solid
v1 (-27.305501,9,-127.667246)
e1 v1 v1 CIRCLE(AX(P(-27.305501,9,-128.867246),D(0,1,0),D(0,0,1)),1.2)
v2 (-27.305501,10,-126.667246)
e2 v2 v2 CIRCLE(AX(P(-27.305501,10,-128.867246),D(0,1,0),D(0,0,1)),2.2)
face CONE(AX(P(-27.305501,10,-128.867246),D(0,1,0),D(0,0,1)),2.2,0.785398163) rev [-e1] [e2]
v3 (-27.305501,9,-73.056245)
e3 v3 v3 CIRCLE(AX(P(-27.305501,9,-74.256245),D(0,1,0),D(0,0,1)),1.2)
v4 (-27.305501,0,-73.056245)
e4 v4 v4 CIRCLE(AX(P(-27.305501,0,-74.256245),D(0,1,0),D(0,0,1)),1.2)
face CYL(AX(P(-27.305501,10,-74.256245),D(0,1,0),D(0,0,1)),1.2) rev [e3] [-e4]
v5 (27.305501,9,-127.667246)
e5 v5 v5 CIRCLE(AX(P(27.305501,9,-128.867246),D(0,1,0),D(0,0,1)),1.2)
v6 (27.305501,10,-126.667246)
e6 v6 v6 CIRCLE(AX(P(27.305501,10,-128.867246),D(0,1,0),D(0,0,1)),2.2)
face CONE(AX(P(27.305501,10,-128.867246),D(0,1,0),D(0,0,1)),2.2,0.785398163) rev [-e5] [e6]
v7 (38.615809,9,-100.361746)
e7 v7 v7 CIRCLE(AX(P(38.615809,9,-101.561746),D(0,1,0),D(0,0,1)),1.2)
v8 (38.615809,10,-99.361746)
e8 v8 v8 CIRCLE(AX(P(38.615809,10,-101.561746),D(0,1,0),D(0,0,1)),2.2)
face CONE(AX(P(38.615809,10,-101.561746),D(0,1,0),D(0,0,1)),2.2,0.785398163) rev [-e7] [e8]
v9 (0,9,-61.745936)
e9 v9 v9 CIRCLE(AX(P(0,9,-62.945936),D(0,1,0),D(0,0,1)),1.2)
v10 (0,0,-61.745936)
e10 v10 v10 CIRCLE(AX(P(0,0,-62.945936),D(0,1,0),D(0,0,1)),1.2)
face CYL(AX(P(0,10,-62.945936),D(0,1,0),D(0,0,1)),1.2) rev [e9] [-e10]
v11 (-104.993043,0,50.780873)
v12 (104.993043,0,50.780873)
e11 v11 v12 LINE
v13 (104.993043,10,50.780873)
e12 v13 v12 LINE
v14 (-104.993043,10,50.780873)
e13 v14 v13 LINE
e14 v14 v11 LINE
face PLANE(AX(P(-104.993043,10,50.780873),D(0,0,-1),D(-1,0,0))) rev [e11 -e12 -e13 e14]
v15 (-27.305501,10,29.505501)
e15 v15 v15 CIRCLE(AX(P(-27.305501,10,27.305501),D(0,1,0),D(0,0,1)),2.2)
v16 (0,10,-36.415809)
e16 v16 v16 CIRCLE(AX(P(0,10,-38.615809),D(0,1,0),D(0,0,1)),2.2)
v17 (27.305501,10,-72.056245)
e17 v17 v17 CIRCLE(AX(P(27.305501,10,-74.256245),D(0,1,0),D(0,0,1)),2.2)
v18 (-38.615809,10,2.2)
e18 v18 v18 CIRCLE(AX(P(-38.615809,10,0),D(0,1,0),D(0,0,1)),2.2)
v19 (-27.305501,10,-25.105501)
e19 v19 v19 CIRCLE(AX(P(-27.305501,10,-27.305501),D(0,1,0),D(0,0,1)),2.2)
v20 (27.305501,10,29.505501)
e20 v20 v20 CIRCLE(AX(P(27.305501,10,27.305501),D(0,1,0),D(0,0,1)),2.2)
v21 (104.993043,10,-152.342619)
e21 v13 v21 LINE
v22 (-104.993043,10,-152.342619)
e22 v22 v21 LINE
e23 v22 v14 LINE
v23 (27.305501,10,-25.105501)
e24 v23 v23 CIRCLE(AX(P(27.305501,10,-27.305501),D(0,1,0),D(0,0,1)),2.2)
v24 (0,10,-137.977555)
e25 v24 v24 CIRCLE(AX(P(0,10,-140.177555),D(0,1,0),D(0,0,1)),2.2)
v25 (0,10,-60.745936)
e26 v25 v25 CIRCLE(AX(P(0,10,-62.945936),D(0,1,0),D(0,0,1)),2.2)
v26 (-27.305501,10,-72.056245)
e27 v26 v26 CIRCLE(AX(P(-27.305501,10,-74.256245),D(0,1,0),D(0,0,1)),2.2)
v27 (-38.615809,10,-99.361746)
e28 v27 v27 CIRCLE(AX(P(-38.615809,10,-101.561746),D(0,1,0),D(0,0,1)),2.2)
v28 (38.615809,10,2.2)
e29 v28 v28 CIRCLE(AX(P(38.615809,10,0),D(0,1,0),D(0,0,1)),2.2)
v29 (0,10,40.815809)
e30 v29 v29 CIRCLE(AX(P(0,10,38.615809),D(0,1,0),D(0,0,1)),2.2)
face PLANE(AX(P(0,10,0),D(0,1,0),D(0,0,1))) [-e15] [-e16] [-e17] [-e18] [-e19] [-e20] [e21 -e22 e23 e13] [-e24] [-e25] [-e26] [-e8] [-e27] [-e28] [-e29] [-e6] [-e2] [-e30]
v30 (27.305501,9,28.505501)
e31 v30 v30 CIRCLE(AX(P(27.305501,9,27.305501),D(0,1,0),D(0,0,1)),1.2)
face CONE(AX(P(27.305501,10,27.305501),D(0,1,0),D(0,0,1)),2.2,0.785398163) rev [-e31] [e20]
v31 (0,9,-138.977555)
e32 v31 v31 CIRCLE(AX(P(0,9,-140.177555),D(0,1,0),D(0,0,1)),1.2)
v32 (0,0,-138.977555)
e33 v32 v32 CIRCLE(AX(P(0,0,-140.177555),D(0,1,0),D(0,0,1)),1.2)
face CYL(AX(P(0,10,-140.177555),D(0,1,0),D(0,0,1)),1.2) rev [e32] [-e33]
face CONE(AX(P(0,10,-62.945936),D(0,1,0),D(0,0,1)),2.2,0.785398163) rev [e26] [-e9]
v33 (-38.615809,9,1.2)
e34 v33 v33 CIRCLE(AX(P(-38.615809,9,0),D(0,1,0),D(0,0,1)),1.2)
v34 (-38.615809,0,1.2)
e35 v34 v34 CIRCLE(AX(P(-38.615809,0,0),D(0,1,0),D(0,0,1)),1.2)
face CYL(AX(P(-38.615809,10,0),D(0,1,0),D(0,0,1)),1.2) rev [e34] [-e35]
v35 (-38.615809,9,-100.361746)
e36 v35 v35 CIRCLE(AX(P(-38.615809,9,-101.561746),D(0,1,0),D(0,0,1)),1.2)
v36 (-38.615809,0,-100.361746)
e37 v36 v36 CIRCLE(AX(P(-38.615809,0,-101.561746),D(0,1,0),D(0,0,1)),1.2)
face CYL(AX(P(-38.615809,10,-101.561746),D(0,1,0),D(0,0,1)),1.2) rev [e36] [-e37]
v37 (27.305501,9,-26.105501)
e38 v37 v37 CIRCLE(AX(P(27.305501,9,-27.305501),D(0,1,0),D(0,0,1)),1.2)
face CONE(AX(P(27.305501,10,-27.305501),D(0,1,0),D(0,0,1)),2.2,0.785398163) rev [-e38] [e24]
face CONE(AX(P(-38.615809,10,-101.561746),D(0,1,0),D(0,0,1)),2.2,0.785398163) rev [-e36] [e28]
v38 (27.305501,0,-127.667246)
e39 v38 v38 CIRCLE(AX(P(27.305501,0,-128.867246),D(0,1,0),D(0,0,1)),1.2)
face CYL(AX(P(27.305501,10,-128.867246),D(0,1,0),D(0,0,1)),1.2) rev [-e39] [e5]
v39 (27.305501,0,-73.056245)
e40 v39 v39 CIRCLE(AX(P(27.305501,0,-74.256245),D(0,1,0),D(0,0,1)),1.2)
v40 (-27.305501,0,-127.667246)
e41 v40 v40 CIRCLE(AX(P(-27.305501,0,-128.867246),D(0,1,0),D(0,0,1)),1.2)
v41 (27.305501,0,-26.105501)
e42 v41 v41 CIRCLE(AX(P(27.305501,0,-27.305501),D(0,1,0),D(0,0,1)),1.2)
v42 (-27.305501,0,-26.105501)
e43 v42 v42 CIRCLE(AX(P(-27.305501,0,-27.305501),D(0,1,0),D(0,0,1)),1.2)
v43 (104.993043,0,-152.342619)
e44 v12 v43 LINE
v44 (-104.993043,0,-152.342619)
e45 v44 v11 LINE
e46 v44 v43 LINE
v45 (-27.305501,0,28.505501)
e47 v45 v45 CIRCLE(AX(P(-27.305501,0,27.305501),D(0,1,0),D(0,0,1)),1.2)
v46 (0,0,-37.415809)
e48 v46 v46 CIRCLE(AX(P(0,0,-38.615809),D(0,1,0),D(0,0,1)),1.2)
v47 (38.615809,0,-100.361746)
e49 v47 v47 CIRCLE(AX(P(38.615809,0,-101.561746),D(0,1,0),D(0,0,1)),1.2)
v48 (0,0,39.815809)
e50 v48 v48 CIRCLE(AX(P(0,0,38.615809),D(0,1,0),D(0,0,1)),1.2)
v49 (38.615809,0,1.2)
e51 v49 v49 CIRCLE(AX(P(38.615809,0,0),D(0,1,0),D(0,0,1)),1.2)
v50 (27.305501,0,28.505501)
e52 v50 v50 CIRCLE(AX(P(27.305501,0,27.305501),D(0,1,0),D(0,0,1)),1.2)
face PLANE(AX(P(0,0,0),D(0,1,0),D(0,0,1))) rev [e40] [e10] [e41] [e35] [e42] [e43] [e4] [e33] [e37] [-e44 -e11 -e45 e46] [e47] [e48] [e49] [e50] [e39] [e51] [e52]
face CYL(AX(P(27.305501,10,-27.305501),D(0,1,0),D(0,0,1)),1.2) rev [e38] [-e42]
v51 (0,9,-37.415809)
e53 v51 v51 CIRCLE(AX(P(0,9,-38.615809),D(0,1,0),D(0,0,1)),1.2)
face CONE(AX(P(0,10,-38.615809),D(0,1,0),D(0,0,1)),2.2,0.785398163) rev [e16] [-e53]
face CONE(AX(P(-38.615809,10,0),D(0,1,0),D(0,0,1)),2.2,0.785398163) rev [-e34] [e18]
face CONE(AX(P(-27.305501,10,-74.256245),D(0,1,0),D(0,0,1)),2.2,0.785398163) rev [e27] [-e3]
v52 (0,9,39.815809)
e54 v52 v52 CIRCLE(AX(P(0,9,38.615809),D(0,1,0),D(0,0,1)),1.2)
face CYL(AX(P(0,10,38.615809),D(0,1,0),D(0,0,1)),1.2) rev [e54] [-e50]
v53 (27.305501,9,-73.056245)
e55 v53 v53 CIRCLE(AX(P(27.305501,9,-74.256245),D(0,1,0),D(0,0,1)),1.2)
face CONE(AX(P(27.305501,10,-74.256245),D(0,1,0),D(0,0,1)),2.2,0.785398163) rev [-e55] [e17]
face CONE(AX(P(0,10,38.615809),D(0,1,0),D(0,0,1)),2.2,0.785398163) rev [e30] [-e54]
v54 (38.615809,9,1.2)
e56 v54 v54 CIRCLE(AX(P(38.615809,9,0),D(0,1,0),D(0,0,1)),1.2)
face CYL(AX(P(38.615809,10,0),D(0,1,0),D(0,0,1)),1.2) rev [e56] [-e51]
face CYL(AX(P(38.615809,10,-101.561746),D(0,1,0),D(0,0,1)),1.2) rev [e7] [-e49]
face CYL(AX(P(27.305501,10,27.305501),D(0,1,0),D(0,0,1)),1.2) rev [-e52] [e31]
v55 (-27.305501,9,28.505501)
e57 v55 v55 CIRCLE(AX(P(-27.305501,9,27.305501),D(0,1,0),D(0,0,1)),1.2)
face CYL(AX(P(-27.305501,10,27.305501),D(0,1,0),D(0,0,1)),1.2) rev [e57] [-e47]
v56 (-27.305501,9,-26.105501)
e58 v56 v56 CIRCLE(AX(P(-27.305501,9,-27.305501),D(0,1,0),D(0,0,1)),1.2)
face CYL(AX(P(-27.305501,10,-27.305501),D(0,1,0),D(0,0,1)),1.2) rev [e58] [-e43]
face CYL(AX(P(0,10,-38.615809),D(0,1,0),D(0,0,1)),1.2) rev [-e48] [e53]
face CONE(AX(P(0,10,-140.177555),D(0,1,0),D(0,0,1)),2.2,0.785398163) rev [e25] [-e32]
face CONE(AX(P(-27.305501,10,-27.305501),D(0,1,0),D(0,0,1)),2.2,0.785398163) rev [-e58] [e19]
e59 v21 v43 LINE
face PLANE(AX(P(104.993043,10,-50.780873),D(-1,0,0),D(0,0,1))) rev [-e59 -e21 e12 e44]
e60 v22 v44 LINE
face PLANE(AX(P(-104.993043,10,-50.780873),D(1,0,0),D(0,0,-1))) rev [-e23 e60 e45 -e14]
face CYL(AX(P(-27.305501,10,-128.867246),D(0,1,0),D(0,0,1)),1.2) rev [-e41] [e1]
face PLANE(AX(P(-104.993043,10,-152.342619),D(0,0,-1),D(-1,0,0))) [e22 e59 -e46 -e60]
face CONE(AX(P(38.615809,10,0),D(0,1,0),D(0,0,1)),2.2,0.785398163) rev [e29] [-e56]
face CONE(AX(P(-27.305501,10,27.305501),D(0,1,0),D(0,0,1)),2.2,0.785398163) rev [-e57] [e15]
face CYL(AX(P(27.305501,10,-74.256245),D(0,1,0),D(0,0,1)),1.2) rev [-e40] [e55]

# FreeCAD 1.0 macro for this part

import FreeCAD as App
import Part
import Sketcher

V = App.Vector


def add_polygon(sketch, points):
    """Adds a closed chain of lines whose ends are joined by coincident constraints."""
    first, n = sketch.GeometryCount, len(points)
    for a, b in zip(points, points[1:] + points[:1]):
        sketch.addGeometry(Part.LineSegment(App.Vector(*a, 0), App.Vector(*b, 0)), False)
    for i in range(n):
        sketch.addConstraint(Sketcher.Constraint("Coincident", first + i, 2, first + (i + 1) % n, 1))

doc = App.newDocument("Part")
params = doc.addObject("Spreadsheet::Sheet", "Params")
for row, (alias, value) in enumerate([
    ("pad1_length", "10 mm"),
    ("sketch2_diameter", "2.4 mm"),
    ("hole_diameter", "2.4 mm"),
    ("hole_csink_diameter", "4.4 mm"),
    ("sketch3_diameter", "2.4 mm"),
    ("hole2_diameter", "2.4 mm"),
    ("hole2_csink_diameter", "4.4 mm"),
    ("sketch4_diameter", "2.4 mm"),
    ("hole3_diameter", "2.4 mm"),
    ("hole3_csink_diameter", "4.4 mm"),
    ("sketch5_diameter", "2.4 mm"),
    ("hole4_diameter", "2.4 mm"),
    ("hole4_csink_diameter", "4.4 mm"),
    ("sketch6_diameter", "2.4 mm"),
    ("hole5_diameter", "2.4 mm"),
    ("hole5_csink_diameter", "4.4 mm"),
    ("sketch7_diameter", "2.4 mm"),
    ("hole6_diameter", "2.4 mm"),
    ("hole6_csink_diameter", "4.4 mm"),
    ("sketch8_diameter", "2.4 mm"),
    ("hole7_diameter", "2.4 mm"),
    ("hole7_csink_diameter", "4.4 mm"),
    ("sketch9_diameter", "2.4 mm"),
    ("hole8_diameter", "2.4 mm"),
    ("hole8_csink_diameter", "4.4 mm"),
], start=1):
    params.set(f"A{row}", alias)
    params.set(f"B{row}", "=" + value)
    params.setAlias(f"B{row}", alias)

body = doc.addObject("PartDesign::Body", "Body")

# Sketch on XZ plane
sketch1 = body.newObject("Sketcher::SketchObject", "Sketch")
sketch1.AttachmentSupport = (doc.getObject("XZ_Plane"), [""])
sketch1.MapMode = "FlatFace"
add_polygon(sketch1, [(-105, -51), (-105, 51), (105, 51), (105, -51)])  # lines 0-3
sketch1.addConstraint([
    Sketcher.Constraint("Vertical", 0),
    Sketcher.Constraint("Horizontal", 1),
    Sketcher.Constraint("Vertical", 2),
    Sketcher.Constraint("Horizontal", 3),
    Sketcher.Constraint("Symmetric", 0, 2, 2, 2, -1, 1),
    Sketcher.Constraint("DistanceX", 1, 1, 1, 2, 209.986086),
    Sketcher.Constraint("DistanceY", 0, 1, 0, 2, 101.561746),
])
pad1 = body.newObject("PartDesign::Pad", "Pad")
pad1.Profile = sketch1
pad1.setExpression("Length", "Params.pad1_length")
pad1.Reversed = True

# Sketch on XZ plane
sketch2 = body.newObject("Sketcher::SketchObject", "Sketch001")
sketch2.AttachmentSupport = (doc.getObject("XZ_Plane"), [""])
sketch2.MapMode = "FlatFace"
sketch2.AttachmentOffset = App.Placement(V(0, 0, -10), App.Rotation())
sketch2.addGeometry(Part.Circle(V(-38.6, 0, 0), V(0, 0, 1), 1.2), False)
sketch2.addConstraint([
    Sketcher.Constraint("PointOnObject", 0, 3, -1),
    Sketcher.Constraint("Diameter", 0, 2.4),
    Sketcher.Constraint("DistanceX", 0, 3, -1, 1, 38.615809),
])
sketch2.setExpression("Constraints[1]", "Params.sketch2_diameter")
doc.recompute()
hole = body.newObject("PartDesign::Hole", "Hole")
hole.Profile = sketch2
hole.ThreadType = "None"
hole.setExpression("Diameter", "Params.hole_diameter")
hole.DepthType = "ThroughAll"
hole.HoleCutType = "Countersink"
hole.setExpression("HoleCutDiameter", "Params.hole_csink_diameter")
hole.HoleCutCountersinkAngle = 90
hole.Reversed = True
doc.recompute()

polarpattern = body.newObject("PartDesign::PolarPattern", "PolarPattern")
polarpattern.Originals = [hole]
polarpattern.Axis = (doc.getObject("Y_Axis"), [""])
polarpattern.Angle = 360
polarpattern.Occurrences = 8
body.Tip = polarpattern
doc.recompute()

datumplane = body.newObject("PartDesign::Plane", "DatumPlane")
datumplane.AttachmentSupport = (doc.getObject("XY_Plane"), [""])
datumplane.MapMode = "FlatFace"
datumplane.AttachmentOffset = App.Placement(V(0, 0, -50.780873), App.Rotation())
mirrored = body.newObject("PartDesign::Mirrored", "Mirrored")
mirrored.Originals = [pad1, hole]
mirrored.MirrorPlane = (datumplane, [""])
body.Tip = mirrored

# Sketch on XZ plane
sketch3 = body.newObject("Sketcher::SketchObject", "Sketch002")
sketch3.AttachmentSupport = (doc.getObject("XZ_Plane"), [""])
sketch3.MapMode = "FlatFace"
sketch3.AttachmentOffset = App.Placement(V(0, 0, -10), App.Rotation())
sketch3.addGeometry(Part.Circle(V(-27.3, -128.9, 0), V(0, 0, 1), 1.2), False)
sketch3.addConstraint([
    Sketcher.Constraint("Diameter", 0, 2.4),
    Sketcher.Constraint("DistanceX", 0, 3, -1, 1, 27.305501),
    Sketcher.Constraint("DistanceY", 0, 3, -1, 1, 128.867246),
])
sketch3.setExpression("Constraints[0]", "Params.sketch3_diameter")
doc.recompute()
hole2 = body.newObject("PartDesign::Hole", "Hole001")
hole2.Profile = sketch3
hole2.ThreadType = "None"
hole2.setExpression("Diameter", "Params.hole2_diameter")
hole2.DepthType = "ThroughAll"
hole2.HoleCutType = "Countersink"
hole2.setExpression("HoleCutDiameter", "Params.hole2_csink_diameter")
hole2.HoleCutCountersinkAngle = 90
hole2.Reversed = True

# Sketch on XZ plane
sketch4 = body.newObject("Sketcher::SketchObject", "Sketch003")
sketch4.AttachmentSupport = (doc.getObject("XZ_Plane"), [""])
sketch4.MapMode = "FlatFace"
sketch4.AttachmentOffset = App.Placement(V(0, 0, -10), App.Rotation())
sketch4.addGeometry(Part.Circle(V(0, -140.2, 0), V(0, 0, 1), 1.2), False)
sketch4.addConstraint([
    Sketcher.Constraint("PointOnObject", 0, 3, -2),
    Sketcher.Constraint("Diameter", 0, 2.4),
    Sketcher.Constraint("DistanceY", 0, 3, -1, 1, 140.177555),
])
sketch4.setExpression("Constraints[1]", "Params.sketch4_diameter")
doc.recompute()
hole3 = body.newObject("PartDesign::Hole", "Hole002")
hole3.Profile = sketch4
hole3.ThreadType = "None"
hole3.setExpression("Diameter", "Params.hole3_diameter")
hole3.DepthType = "ThroughAll"
hole3.HoleCutType = "Countersink"
hole3.setExpression("HoleCutDiameter", "Params.hole3_csink_diameter")
hole3.HoleCutCountersinkAngle = 90
hole3.Reversed = True

# Sketch on XZ plane
sketch5 = body.newObject("Sketcher::SketchObject", "Sketch004")
sketch5.AttachmentSupport = (doc.getObject("XZ_Plane"), [""])
sketch5.MapMode = "FlatFace"
sketch5.AttachmentOffset = App.Placement(V(0, 0, -10), App.Rotation())
sketch5.addGeometry(Part.Circle(V(27.3, -128.9, 0), V(0, 0, 1), 1.2), False)
sketch5.addConstraint([
    Sketcher.Constraint("Diameter", 0, 2.4),
    Sketcher.Constraint("DistanceX", -1, 1, 0, 3, 27.305501),
    Sketcher.Constraint("DistanceY", 0, 3, -1, 1, 128.867246),
])
sketch5.setExpression("Constraints[0]", "Params.sketch5_diameter")
doc.recompute()
hole4 = body.newObject("PartDesign::Hole", "Hole003")
hole4.Profile = sketch5
hole4.ThreadType = "None"
hole4.setExpression("Diameter", "Params.hole4_diameter")
hole4.DepthType = "ThroughAll"
hole4.HoleCutType = "Countersink"
hole4.setExpression("HoleCutDiameter", "Params.hole4_csink_diameter")
hole4.HoleCutCountersinkAngle = 90
hole4.Reversed = True

# Sketch on XZ plane
sketch6 = body.newObject("Sketcher::SketchObject", "Sketch005")
sketch6.AttachmentSupport = (doc.getObject("XZ_Plane"), [""])
sketch6.MapMode = "FlatFace"
sketch6.AttachmentOffset = App.Placement(V(0, 0, -10), App.Rotation())
sketch6.addGeometry(Part.Circle(V(38.6, -101.6, 0), V(0, 0, 1), 1.2), False)
sketch6.addConstraint([
    Sketcher.Constraint("Diameter", 0, 2.4),
    Sketcher.Constraint("DistanceX", -1, 1, 0, 3, 38.615809),
    Sketcher.Constraint("DistanceY", 0, 3, -1, 1, 101.561746),
])
sketch6.setExpression("Constraints[0]", "Params.sketch6_diameter")
doc.recompute()
hole5 = body.newObject("PartDesign::Hole", "Hole004")
hole5.Profile = sketch6
hole5.ThreadType = "None"
hole5.setExpression("Diameter", "Params.hole5_diameter")
hole5.DepthType = "ThroughAll"
hole5.HoleCutType = "Countersink"
hole5.setExpression("HoleCutDiameter", "Params.hole5_csink_diameter")
hole5.HoleCutCountersinkAngle = 90
hole5.Reversed = True

# Sketch on XZ plane
sketch7 = body.newObject("Sketcher::SketchObject", "Sketch006")
sketch7.AttachmentSupport = (doc.getObject("XZ_Plane"), [""])
sketch7.MapMode = "FlatFace"
sketch7.AttachmentOffset = App.Placement(V(0, 0, -10), App.Rotation())
sketch7.addGeometry(Part.Circle(V(27.3, -74.3, 0), V(0, 0, 1), 1.2), False)
sketch7.addConstraint([
    Sketcher.Constraint("Diameter", 0, 2.4),
    Sketcher.Constraint("DistanceX", -1, 1, 0, 3, 27.305501),
    Sketcher.Constraint("DistanceY", 0, 3, -1, 1, 74.256245),
])
sketch7.setExpression("Constraints[0]", "Params.sketch7_diameter")
doc.recompute()
hole6 = body.newObject("PartDesign::Hole", "Hole005")
hole6.Profile = sketch7
hole6.ThreadType = "None"
hole6.setExpression("Diameter", "Params.hole6_diameter")
hole6.DepthType = "ThroughAll"
hole6.HoleCutType = "Countersink"
hole6.setExpression("HoleCutDiameter", "Params.hole6_csink_diameter")
hole6.HoleCutCountersinkAngle = 90
hole6.Reversed = True

# Sketch on XZ plane
sketch8 = body.newObject("Sketcher::SketchObject", "Sketch007")
sketch8.AttachmentSupport = (doc.getObject("XZ_Plane"), [""])
sketch8.MapMode = "FlatFace"
sketch8.AttachmentOffset = App.Placement(V(0, 0, -10), App.Rotation())
sketch8.addGeometry(Part.Circle(V(0, -62.9, 0), V(0, 0, 1), 1.2), False)
sketch8.addConstraint([
    Sketcher.Constraint("PointOnObject", 0, 3, -2),
    Sketcher.Constraint("Diameter", 0, 2.4),
    Sketcher.Constraint("DistanceY", 0, 3, -1, 1, 62.945936),
])
sketch8.setExpression("Constraints[1]", "Params.sketch8_diameter")
doc.recompute()
hole7 = body.newObject("PartDesign::Hole", "Hole006")
hole7.Profile = sketch8
hole7.ThreadType = "None"
hole7.setExpression("Diameter", "Params.hole7_diameter")
hole7.DepthType = "ThroughAll"
hole7.HoleCutType = "Countersink"
hole7.setExpression("HoleCutDiameter", "Params.hole7_csink_diameter")
hole7.HoleCutCountersinkAngle = 90
hole7.Reversed = True

# Sketch on XZ plane
sketch9 = body.newObject("Sketcher::SketchObject", "Sketch008")
sketch9.AttachmentSupport = (doc.getObject("XZ_Plane"), [""])
sketch9.MapMode = "FlatFace"
sketch9.AttachmentOffset = App.Placement(V(0, 0, -10), App.Rotation())
sketch9.addGeometry(Part.Circle(V(-27.3, -74.3, 0), V(0, 0, 1), 1.2), False)
sketch9.addConstraint([
    Sketcher.Constraint("Diameter", 0, 2.4),
    Sketcher.Constraint("DistanceX", 0, 3, -1, 1, 27.305501),
    Sketcher.Constraint("DistanceY", 0, 3, -1, 1, 74.256245),
])
sketch9.setExpression("Constraints[0]", "Params.sketch9_diameter")
doc.recompute()
hole8 = body.newObject("PartDesign::Hole", "Hole007")
hole8.Profile = sketch9
hole8.ThreadType = "None"
hole8.setExpression("Diameter", "Params.hole8_diameter")
hole8.DepthType = "ThroughAll"
hole8.HoleCutType = "Countersink"
hole8.setExpression("HoleCutDiameter", "Params.hole8_csink_diameter")
hole8.HoleCutCountersinkAngle = 90
hole8.Reversed = True

doc.recompute()
